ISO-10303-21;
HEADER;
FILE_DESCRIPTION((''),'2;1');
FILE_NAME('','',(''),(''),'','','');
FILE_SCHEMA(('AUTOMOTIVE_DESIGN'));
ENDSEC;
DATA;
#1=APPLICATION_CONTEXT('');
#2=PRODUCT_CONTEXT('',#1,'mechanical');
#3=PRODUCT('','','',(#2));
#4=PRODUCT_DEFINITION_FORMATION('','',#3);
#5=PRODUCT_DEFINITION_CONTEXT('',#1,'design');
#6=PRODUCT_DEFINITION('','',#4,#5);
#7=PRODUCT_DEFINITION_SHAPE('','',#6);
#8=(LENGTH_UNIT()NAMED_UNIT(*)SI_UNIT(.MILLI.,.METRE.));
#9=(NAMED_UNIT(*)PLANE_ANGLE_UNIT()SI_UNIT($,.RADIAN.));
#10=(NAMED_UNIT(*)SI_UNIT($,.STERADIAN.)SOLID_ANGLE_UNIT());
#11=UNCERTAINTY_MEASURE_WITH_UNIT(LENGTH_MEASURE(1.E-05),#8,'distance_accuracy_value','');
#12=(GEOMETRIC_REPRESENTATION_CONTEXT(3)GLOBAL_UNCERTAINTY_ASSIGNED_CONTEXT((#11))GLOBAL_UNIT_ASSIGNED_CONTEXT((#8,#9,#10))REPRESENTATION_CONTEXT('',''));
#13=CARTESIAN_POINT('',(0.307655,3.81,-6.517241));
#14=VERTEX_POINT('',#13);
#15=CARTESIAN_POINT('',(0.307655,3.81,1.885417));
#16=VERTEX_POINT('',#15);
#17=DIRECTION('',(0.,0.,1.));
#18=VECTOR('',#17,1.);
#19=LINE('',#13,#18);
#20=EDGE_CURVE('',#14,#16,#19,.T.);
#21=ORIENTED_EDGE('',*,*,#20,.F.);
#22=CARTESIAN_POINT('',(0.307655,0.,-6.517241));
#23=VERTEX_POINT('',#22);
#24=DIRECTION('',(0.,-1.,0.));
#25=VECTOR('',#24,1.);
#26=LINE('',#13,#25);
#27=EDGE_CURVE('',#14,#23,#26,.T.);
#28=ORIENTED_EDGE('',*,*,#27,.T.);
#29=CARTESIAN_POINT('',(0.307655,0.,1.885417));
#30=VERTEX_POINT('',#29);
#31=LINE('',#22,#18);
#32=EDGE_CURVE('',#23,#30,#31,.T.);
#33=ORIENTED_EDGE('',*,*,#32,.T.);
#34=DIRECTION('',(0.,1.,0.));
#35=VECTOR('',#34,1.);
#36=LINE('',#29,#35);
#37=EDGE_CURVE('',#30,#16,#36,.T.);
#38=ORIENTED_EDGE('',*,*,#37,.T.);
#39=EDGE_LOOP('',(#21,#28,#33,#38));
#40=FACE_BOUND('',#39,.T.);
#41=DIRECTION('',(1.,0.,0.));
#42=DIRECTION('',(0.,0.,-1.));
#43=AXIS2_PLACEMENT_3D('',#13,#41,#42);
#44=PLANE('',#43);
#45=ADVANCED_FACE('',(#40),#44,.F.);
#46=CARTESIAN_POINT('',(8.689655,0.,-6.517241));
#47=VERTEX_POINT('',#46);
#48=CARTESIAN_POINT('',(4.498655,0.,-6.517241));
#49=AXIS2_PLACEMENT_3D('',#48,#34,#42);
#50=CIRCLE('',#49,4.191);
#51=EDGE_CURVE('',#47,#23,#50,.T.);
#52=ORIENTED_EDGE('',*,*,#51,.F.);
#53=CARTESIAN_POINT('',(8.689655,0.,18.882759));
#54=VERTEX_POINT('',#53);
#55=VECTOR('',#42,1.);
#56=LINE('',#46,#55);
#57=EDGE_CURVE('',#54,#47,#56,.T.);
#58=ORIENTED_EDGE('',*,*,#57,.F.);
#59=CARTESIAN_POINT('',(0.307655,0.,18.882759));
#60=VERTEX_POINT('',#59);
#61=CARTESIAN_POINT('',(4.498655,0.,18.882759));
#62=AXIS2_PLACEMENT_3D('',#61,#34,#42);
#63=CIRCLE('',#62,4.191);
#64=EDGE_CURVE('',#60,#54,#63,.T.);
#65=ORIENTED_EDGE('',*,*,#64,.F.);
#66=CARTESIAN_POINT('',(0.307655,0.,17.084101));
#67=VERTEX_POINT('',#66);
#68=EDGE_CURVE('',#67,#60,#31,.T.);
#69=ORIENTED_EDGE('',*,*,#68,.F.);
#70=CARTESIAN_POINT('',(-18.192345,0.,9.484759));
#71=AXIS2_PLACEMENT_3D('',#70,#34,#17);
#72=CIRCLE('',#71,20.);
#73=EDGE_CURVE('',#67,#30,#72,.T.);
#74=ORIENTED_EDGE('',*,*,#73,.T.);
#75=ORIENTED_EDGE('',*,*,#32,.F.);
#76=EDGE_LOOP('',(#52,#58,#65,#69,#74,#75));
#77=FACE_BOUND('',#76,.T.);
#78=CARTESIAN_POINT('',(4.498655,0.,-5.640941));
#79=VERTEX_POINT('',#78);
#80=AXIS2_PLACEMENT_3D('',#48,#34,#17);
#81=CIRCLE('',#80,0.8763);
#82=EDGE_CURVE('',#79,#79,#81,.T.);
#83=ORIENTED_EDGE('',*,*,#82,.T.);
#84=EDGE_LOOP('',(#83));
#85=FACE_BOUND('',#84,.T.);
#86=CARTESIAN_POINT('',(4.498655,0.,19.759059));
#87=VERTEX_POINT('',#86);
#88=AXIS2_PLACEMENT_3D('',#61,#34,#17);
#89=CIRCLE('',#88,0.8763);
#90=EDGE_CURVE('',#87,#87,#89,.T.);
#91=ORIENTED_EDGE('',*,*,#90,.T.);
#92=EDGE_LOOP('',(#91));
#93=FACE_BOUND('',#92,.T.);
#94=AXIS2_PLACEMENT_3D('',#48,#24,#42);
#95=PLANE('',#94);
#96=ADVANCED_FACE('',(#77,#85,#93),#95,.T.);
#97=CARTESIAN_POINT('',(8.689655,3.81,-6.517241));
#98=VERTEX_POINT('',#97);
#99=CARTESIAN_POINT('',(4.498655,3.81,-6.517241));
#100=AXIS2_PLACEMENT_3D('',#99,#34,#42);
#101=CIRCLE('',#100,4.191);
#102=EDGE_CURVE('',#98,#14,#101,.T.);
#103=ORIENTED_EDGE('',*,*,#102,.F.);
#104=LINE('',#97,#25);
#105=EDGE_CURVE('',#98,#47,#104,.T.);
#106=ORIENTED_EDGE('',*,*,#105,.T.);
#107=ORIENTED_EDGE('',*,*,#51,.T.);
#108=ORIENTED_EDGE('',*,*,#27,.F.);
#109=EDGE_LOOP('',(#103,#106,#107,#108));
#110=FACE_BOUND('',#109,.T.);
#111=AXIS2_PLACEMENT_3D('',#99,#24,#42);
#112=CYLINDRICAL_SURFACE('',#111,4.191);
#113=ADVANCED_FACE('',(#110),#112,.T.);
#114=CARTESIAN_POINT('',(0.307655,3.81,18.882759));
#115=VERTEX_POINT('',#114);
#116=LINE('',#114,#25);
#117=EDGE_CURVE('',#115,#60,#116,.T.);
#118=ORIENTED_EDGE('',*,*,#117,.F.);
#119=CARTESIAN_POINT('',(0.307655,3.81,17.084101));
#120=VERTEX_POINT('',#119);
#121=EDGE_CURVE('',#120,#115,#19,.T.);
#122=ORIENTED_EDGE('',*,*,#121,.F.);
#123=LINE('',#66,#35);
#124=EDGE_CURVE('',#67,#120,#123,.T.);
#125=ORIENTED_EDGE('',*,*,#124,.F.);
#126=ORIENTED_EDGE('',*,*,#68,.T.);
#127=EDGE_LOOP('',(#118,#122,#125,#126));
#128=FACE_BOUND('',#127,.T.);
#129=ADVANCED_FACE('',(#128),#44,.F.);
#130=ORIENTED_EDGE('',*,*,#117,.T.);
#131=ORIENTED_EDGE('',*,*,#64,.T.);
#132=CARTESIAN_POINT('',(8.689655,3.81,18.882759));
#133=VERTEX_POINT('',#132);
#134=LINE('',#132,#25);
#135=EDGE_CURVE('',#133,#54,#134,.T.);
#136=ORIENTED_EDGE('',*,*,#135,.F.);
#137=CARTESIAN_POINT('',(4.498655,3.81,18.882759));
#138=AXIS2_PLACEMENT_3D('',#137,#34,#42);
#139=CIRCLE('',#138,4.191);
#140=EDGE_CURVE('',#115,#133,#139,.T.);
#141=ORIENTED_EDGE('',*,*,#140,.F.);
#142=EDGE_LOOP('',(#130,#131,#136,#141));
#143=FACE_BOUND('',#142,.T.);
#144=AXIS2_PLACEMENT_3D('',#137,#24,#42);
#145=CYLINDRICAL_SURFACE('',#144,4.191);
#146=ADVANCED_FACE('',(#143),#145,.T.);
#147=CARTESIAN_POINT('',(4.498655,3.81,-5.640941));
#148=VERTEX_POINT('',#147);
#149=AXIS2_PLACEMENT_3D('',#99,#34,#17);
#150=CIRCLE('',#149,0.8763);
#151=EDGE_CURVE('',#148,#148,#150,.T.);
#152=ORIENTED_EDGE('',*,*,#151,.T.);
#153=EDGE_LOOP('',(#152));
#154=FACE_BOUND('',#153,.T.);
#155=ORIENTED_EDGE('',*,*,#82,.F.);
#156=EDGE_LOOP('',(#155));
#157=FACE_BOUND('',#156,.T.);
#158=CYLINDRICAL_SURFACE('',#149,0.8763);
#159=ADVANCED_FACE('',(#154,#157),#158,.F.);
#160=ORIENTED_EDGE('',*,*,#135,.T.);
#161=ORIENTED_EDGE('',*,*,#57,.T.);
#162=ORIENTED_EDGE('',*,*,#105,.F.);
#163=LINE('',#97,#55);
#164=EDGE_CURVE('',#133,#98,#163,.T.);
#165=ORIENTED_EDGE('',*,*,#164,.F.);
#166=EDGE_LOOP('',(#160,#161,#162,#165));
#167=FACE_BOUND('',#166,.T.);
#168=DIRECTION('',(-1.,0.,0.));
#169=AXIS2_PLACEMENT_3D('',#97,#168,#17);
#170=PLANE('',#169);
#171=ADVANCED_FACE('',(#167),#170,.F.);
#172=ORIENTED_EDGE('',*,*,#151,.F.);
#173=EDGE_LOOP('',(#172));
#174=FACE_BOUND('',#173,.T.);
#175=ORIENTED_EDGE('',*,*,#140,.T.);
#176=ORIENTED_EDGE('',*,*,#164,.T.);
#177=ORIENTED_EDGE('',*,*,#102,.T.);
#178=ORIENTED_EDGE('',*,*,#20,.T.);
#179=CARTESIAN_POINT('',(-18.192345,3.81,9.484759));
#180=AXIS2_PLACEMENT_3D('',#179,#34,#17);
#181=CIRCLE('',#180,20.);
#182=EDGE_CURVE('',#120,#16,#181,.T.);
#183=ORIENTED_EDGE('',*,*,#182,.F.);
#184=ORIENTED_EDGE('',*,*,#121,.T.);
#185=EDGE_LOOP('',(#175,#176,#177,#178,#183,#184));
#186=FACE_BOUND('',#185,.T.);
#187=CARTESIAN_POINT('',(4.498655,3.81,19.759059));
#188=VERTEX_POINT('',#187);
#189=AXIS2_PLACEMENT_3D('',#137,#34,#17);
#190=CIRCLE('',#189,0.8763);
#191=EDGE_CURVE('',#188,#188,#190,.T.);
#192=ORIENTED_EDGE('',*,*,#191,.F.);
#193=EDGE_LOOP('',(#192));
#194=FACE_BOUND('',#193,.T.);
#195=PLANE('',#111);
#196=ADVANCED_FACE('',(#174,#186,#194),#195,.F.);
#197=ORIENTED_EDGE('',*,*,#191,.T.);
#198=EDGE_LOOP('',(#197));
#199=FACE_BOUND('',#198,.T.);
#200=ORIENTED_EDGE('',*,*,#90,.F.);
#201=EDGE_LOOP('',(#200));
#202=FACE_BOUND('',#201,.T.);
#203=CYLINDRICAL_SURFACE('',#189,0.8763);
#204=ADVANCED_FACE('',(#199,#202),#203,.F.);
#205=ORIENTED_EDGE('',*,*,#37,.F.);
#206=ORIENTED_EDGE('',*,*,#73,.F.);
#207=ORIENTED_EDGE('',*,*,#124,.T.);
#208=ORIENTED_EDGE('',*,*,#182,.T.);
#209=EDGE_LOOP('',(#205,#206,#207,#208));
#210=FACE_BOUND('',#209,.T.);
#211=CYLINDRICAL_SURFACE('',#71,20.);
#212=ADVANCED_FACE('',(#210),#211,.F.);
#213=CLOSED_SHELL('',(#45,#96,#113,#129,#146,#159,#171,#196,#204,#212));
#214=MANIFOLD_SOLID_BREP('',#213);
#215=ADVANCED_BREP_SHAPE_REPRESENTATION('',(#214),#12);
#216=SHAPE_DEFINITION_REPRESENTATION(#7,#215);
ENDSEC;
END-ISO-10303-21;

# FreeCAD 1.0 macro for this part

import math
import FreeCAD as App
import Part
import Sketcher
Q = App.Units.Quantity

doc = App.newDocument("Part")
body = doc.addObject("PartDesign::Body", "Body")

# Sketch on XZ plane
sketch1 = body.newObject("Sketcher::SketchObject", "Sketch")
sketch1.AttachmentSupport = (doc.getObject("XZ_Plane"), [""])
sketch1.MapMode = "FlatFace"
sketch1.addGeometry(Part.LineSegment(App.Vector(0.307655, -6.517241, 0), App.Vector(0.307655, 18.882759, 0)), False)
sketch1.addGeometry(Part.ArcOfCircle(Part.Circle(App.Vector(4.498655, 18.882759, 0), App.Vector(0, 0, 1), 4.191), math.radians(0), math.radians(180)), False)
sketch1.addGeometry(Part.LineSegment(App.Vector(8.689655, 18.882759, 0), App.Vector(8.689655, -6.517241, 0)), False)
sketch1.addGeometry(Part.ArcOfCircle(Part.Circle(App.Vector(4.498655, -6.517241, 0), App.Vector(0, 0, 1), 4.191), math.radians(180), math.radians(360)), False)
sketch1.addConstraint(Sketcher.Constraint("Tangent", 0, 2, 1, 2))
sketch1.addConstraint(Sketcher.Constraint("Tangent", 1, 1, 2, 1))
sketch1.addConstraint(Sketcher.Constraint("Tangent", 2, 2, 3, 2))
sketch1.addConstraint(Sketcher.Constraint("Tangent", 3, 1, 0, 1))
sketch1.addConstraint(Sketcher.Constraint("Vertical", 0))
sketch1.addConstraint(Sketcher.Constraint("Vertical", 2))
sketch1.addConstraint(Sketcher.Constraint("DistanceY", 0, 1, 0, 2, Q("1 in")))
sketch1.addConstraint(Sketcher.Constraint("Radius", 1, Q("0.165 in")))
sketch1.addConstraint(Sketcher.Constraint("DistanceY", -1, 1, 1, 3, Q("18.882759 mm")))
sketch1.addConstraint(Sketcher.Constraint("DistanceX", -1, 1, 1, 3, Q("4.498655 mm")))
pad1 = body.newObject("PartDesign::Pad", "Pad")
pad1.Profile = sketch1
pad1.Length = Q("0.15 in")
pad1.Reversed = True

# Sketch on XZ plane
sketch2 = body.newObject("Sketcher::SketchObject", "Sketch001")
sketch2.AttachmentSupport = (doc.getObject("XZ_Plane"), [""])
sketch2.MapMode = "FlatFace"
sketch2.AttachmentOffset = App.Placement(App.Vector(0, 0, -0.15 * 25.4), App.Rotation())
sketch2.addGeometry(Part.Circle(App.Vector(4.498655, -6.517241, 0), App.Vector(0, 0, 1), 0.8763), False)
sketch2.addGeometry(Part.Circle(App.Vector(4.498655, 18.882759, 0), App.Vector(0, 0, 1), 0.8763), False)
sketch2.addConstraint(Sketcher.Constraint("Equal", 0, 1))
sketch2.addConstraint(Sketcher.Constraint("Vertical", 0, 3, 1, 3))
sketch2.addConstraint(Sketcher.Constraint("Diameter", 0, Q("0.069 in")))
sketch2.addConstraint(Sketcher.Constraint("DistanceY", 0, 3, 1, 3, Q("1 in")))
sketch2.addConstraint(Sketcher.Constraint("DistanceY", 0, 3, -1, 1, Q("6.517241 mm")))
sketch2.addConstraint(Sketcher.Constraint("DistanceX", -1, 1, 0, 3, Q("4.498655 mm")))
doc.recompute()
hole = body.newObject("PartDesign::Hole", "Hole")
hole.Profile = sketch2
hole.ThreadType = "None"
hole.Diameter = Q("0.069 in")
hole.DepthType = "ThroughAll"
hole.Reversed = True

# Sketch on XZ plane
sketch3 = body.newObject("Sketcher::SketchObject", "Sketch002")
sketch3.AttachmentSupport = (doc.getObject("XZ_Plane"), [""])
sketch3.MapMode = "FlatFace"
sketch3.AttachmentOffset = App.Placement(App.Vector(0, 0, -0.15 * 25.4), App.Rotation())
sketch3.addGeometry(Part.LineSegment(App.Vector(0.307655, 1.885417, 0), App.Vector(0.307655, 17.084101, 0)), False)
sketch3.addGeometry(Part.ArcOfCircle(Part.Circle(App.Vector(-18.192345, 9.484759, 0), App.Vector(0, 0, 1), 20), math.radians(-22.331645), math.radians(22.331645)), False)
sketch3.addConstraint(Sketcher.Constraint("Coincident", 0, 1, 1, 1))
sketch3.addConstraint(Sketcher.Constraint("Coincident", 1, 2, 0, 2))
sketch3.addConstraint(Sketcher.Constraint("Vertical", 0))
sketch3.addConstraint(Sketcher.Constraint("Radius", 1, Q("20 mm")))
sketch3.addConstraint(Sketcher.Constraint("DistanceY", -1, 1, 1, 2, Q("17.084101 mm")))
sketch3.addConstraint(Sketcher.Constraint("DistanceX", 1, 3, 0, 1, Q("18.5 mm")))
sketch3.addConstraint(Sketcher.Constraint("DistanceX", 1, 3, -1, 1, Q("18.192345 mm")))
pocket1 = body.newObject("PartDesign::Pocket", "Pocket")
pocket1.Profile = sketch3
pocket1.Type = "ThroughAll"
pocket1.Reversed = True

doc.recompute()
